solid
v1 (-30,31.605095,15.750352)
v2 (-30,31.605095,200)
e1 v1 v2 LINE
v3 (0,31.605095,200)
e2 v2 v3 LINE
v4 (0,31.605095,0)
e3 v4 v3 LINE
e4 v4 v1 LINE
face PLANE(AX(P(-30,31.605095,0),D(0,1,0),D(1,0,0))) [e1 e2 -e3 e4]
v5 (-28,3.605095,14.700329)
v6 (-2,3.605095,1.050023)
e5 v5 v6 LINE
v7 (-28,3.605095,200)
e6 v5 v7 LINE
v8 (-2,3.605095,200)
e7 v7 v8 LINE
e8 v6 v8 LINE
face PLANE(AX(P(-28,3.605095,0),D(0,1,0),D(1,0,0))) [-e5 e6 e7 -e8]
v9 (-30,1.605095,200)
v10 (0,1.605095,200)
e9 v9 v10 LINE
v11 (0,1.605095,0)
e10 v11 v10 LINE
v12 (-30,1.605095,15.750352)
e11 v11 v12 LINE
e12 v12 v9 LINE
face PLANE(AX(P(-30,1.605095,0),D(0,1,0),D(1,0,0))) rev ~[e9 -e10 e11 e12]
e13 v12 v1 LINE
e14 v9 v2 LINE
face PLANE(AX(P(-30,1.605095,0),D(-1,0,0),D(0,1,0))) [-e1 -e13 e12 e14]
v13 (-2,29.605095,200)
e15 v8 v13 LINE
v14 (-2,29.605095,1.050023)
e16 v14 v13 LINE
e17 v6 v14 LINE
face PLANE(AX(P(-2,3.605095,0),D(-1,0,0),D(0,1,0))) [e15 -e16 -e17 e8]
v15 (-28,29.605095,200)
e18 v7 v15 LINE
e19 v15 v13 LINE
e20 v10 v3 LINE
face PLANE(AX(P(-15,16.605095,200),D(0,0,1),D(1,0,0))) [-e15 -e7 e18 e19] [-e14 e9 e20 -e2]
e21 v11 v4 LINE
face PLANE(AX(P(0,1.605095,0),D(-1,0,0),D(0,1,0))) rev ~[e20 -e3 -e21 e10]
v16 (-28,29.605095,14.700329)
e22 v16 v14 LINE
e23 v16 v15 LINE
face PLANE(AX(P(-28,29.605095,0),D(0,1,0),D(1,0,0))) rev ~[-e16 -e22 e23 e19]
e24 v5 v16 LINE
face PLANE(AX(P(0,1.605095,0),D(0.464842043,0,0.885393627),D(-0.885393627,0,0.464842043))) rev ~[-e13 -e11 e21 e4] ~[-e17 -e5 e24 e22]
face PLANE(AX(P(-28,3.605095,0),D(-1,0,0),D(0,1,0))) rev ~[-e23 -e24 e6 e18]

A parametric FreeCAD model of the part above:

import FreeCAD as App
import Part
import Sketcher

V = App.Vector
Q = App.Units.Quantity


def add_polygon(sketch, points):
    """Adds a closed chain of lines whose ends are joined by coincident constraints."""
    first, n = sketch.GeometryCount, len(points)
    for a, b in zip(points, points[1:] + points[:1]):
        sketch.addGeometry(Part.LineSegment(App.Vector(*a, 0), App.Vector(*b, 0)), False)
    for i in range(n):
        sketch.addConstraint(Sketcher.Constraint("Coincident", first + i, 2, first + (i + 1) % n, 1))

doc = App.newDocument("Part")
body = doc.addObject("PartDesign::Body", "Body")

sketch1 = body.newObject("Sketcher::SketchObject", "Sketch")
sketch1.AttachmentSupport = (doc.getObject("XY_Plane"), [""])
sketch1.MapMode = "FlatFace"
add_polygon(sketch1, [(-30, 32), (-30, 2), (0, 2), (0, 32)])
add_polygon(sketch1, [(-2, 4), (-28, 4), (-28, 30), (-2, 30)])
sketch1.addConstraint([
    Sketcher.Constraint("Vertical", 0),
    Sketcher.Constraint("Horizontal", 1),
    Sketcher.Constraint("Vertical", 2),
    Sketcher.Constraint("Horizontal", 3),
    Sketcher.Constraint("Horizontal", 4),
    Sketcher.Constraint("Vertical", 5),
    Sketcher.Constraint("Horizontal", 6),
    Sketcher.Constraint("Vertical", 7),
    Sketcher.Constraint("PointOnObject", 1, 2, -2),
    Sketcher.Constraint("Equal", 3, 0),
    Sketcher.Constraint("Equal", 6, 5),
    Sketcher.Constraint("DistanceX", 1, 1, 1, 2, Q("30 mm")),
    Sketcher.Constraint("DistanceX", 4, 2, 4, 1, Q("26 mm")),
    Sketcher.Constraint("DistanceX", 4, 2, -1, 1, Q("28 mm")),
    Sketcher.Constraint("DistanceY", 0, 2, 4, 2, Q("2 mm")),
    Sketcher.Constraint("DistanceY", -1, 1, 0, 2, Q("1.605095 mm")),
])
pad1 = body.newObject("PartDesign::Pad", "Pad")
pad1.Profile = sketch1
pad1.Length = 200

sketch2 = body.newObject("Sketcher::SketchObject", "Sketch001")
sketch2.AttachmentSupport = (doc.getObject("XZ_Plane"), [""])
sketch2.MapMode = "FlatFace"
sketch2.AttachmentOffset = App.Placement(V(0, 0, -1.605095), App.Rotation())
add_polygon(sketch2, [(-30, 0), (0, 0), (-30, 16)])
sketch2.addConstraint([
    Sketcher.Constraint("Horizontal", 0),
    Sketcher.Constraint("Vertical", 2),
    Sketcher.Constraint("Coincident", 0, 2, -1, 1),
    Sketcher.Constraint("DistanceX", 0, 1, 0, 2, Q("30 mm")),
    Sketcher.Constraint("Angle", 1, Q("152.3 deg")),
])
pocket1 = body.newObject("PartDesign::Pocket", "Pocket")
pocket1.Profile = sketch2
pocket1.Type = "ThroughAll"

doc.recompute()
